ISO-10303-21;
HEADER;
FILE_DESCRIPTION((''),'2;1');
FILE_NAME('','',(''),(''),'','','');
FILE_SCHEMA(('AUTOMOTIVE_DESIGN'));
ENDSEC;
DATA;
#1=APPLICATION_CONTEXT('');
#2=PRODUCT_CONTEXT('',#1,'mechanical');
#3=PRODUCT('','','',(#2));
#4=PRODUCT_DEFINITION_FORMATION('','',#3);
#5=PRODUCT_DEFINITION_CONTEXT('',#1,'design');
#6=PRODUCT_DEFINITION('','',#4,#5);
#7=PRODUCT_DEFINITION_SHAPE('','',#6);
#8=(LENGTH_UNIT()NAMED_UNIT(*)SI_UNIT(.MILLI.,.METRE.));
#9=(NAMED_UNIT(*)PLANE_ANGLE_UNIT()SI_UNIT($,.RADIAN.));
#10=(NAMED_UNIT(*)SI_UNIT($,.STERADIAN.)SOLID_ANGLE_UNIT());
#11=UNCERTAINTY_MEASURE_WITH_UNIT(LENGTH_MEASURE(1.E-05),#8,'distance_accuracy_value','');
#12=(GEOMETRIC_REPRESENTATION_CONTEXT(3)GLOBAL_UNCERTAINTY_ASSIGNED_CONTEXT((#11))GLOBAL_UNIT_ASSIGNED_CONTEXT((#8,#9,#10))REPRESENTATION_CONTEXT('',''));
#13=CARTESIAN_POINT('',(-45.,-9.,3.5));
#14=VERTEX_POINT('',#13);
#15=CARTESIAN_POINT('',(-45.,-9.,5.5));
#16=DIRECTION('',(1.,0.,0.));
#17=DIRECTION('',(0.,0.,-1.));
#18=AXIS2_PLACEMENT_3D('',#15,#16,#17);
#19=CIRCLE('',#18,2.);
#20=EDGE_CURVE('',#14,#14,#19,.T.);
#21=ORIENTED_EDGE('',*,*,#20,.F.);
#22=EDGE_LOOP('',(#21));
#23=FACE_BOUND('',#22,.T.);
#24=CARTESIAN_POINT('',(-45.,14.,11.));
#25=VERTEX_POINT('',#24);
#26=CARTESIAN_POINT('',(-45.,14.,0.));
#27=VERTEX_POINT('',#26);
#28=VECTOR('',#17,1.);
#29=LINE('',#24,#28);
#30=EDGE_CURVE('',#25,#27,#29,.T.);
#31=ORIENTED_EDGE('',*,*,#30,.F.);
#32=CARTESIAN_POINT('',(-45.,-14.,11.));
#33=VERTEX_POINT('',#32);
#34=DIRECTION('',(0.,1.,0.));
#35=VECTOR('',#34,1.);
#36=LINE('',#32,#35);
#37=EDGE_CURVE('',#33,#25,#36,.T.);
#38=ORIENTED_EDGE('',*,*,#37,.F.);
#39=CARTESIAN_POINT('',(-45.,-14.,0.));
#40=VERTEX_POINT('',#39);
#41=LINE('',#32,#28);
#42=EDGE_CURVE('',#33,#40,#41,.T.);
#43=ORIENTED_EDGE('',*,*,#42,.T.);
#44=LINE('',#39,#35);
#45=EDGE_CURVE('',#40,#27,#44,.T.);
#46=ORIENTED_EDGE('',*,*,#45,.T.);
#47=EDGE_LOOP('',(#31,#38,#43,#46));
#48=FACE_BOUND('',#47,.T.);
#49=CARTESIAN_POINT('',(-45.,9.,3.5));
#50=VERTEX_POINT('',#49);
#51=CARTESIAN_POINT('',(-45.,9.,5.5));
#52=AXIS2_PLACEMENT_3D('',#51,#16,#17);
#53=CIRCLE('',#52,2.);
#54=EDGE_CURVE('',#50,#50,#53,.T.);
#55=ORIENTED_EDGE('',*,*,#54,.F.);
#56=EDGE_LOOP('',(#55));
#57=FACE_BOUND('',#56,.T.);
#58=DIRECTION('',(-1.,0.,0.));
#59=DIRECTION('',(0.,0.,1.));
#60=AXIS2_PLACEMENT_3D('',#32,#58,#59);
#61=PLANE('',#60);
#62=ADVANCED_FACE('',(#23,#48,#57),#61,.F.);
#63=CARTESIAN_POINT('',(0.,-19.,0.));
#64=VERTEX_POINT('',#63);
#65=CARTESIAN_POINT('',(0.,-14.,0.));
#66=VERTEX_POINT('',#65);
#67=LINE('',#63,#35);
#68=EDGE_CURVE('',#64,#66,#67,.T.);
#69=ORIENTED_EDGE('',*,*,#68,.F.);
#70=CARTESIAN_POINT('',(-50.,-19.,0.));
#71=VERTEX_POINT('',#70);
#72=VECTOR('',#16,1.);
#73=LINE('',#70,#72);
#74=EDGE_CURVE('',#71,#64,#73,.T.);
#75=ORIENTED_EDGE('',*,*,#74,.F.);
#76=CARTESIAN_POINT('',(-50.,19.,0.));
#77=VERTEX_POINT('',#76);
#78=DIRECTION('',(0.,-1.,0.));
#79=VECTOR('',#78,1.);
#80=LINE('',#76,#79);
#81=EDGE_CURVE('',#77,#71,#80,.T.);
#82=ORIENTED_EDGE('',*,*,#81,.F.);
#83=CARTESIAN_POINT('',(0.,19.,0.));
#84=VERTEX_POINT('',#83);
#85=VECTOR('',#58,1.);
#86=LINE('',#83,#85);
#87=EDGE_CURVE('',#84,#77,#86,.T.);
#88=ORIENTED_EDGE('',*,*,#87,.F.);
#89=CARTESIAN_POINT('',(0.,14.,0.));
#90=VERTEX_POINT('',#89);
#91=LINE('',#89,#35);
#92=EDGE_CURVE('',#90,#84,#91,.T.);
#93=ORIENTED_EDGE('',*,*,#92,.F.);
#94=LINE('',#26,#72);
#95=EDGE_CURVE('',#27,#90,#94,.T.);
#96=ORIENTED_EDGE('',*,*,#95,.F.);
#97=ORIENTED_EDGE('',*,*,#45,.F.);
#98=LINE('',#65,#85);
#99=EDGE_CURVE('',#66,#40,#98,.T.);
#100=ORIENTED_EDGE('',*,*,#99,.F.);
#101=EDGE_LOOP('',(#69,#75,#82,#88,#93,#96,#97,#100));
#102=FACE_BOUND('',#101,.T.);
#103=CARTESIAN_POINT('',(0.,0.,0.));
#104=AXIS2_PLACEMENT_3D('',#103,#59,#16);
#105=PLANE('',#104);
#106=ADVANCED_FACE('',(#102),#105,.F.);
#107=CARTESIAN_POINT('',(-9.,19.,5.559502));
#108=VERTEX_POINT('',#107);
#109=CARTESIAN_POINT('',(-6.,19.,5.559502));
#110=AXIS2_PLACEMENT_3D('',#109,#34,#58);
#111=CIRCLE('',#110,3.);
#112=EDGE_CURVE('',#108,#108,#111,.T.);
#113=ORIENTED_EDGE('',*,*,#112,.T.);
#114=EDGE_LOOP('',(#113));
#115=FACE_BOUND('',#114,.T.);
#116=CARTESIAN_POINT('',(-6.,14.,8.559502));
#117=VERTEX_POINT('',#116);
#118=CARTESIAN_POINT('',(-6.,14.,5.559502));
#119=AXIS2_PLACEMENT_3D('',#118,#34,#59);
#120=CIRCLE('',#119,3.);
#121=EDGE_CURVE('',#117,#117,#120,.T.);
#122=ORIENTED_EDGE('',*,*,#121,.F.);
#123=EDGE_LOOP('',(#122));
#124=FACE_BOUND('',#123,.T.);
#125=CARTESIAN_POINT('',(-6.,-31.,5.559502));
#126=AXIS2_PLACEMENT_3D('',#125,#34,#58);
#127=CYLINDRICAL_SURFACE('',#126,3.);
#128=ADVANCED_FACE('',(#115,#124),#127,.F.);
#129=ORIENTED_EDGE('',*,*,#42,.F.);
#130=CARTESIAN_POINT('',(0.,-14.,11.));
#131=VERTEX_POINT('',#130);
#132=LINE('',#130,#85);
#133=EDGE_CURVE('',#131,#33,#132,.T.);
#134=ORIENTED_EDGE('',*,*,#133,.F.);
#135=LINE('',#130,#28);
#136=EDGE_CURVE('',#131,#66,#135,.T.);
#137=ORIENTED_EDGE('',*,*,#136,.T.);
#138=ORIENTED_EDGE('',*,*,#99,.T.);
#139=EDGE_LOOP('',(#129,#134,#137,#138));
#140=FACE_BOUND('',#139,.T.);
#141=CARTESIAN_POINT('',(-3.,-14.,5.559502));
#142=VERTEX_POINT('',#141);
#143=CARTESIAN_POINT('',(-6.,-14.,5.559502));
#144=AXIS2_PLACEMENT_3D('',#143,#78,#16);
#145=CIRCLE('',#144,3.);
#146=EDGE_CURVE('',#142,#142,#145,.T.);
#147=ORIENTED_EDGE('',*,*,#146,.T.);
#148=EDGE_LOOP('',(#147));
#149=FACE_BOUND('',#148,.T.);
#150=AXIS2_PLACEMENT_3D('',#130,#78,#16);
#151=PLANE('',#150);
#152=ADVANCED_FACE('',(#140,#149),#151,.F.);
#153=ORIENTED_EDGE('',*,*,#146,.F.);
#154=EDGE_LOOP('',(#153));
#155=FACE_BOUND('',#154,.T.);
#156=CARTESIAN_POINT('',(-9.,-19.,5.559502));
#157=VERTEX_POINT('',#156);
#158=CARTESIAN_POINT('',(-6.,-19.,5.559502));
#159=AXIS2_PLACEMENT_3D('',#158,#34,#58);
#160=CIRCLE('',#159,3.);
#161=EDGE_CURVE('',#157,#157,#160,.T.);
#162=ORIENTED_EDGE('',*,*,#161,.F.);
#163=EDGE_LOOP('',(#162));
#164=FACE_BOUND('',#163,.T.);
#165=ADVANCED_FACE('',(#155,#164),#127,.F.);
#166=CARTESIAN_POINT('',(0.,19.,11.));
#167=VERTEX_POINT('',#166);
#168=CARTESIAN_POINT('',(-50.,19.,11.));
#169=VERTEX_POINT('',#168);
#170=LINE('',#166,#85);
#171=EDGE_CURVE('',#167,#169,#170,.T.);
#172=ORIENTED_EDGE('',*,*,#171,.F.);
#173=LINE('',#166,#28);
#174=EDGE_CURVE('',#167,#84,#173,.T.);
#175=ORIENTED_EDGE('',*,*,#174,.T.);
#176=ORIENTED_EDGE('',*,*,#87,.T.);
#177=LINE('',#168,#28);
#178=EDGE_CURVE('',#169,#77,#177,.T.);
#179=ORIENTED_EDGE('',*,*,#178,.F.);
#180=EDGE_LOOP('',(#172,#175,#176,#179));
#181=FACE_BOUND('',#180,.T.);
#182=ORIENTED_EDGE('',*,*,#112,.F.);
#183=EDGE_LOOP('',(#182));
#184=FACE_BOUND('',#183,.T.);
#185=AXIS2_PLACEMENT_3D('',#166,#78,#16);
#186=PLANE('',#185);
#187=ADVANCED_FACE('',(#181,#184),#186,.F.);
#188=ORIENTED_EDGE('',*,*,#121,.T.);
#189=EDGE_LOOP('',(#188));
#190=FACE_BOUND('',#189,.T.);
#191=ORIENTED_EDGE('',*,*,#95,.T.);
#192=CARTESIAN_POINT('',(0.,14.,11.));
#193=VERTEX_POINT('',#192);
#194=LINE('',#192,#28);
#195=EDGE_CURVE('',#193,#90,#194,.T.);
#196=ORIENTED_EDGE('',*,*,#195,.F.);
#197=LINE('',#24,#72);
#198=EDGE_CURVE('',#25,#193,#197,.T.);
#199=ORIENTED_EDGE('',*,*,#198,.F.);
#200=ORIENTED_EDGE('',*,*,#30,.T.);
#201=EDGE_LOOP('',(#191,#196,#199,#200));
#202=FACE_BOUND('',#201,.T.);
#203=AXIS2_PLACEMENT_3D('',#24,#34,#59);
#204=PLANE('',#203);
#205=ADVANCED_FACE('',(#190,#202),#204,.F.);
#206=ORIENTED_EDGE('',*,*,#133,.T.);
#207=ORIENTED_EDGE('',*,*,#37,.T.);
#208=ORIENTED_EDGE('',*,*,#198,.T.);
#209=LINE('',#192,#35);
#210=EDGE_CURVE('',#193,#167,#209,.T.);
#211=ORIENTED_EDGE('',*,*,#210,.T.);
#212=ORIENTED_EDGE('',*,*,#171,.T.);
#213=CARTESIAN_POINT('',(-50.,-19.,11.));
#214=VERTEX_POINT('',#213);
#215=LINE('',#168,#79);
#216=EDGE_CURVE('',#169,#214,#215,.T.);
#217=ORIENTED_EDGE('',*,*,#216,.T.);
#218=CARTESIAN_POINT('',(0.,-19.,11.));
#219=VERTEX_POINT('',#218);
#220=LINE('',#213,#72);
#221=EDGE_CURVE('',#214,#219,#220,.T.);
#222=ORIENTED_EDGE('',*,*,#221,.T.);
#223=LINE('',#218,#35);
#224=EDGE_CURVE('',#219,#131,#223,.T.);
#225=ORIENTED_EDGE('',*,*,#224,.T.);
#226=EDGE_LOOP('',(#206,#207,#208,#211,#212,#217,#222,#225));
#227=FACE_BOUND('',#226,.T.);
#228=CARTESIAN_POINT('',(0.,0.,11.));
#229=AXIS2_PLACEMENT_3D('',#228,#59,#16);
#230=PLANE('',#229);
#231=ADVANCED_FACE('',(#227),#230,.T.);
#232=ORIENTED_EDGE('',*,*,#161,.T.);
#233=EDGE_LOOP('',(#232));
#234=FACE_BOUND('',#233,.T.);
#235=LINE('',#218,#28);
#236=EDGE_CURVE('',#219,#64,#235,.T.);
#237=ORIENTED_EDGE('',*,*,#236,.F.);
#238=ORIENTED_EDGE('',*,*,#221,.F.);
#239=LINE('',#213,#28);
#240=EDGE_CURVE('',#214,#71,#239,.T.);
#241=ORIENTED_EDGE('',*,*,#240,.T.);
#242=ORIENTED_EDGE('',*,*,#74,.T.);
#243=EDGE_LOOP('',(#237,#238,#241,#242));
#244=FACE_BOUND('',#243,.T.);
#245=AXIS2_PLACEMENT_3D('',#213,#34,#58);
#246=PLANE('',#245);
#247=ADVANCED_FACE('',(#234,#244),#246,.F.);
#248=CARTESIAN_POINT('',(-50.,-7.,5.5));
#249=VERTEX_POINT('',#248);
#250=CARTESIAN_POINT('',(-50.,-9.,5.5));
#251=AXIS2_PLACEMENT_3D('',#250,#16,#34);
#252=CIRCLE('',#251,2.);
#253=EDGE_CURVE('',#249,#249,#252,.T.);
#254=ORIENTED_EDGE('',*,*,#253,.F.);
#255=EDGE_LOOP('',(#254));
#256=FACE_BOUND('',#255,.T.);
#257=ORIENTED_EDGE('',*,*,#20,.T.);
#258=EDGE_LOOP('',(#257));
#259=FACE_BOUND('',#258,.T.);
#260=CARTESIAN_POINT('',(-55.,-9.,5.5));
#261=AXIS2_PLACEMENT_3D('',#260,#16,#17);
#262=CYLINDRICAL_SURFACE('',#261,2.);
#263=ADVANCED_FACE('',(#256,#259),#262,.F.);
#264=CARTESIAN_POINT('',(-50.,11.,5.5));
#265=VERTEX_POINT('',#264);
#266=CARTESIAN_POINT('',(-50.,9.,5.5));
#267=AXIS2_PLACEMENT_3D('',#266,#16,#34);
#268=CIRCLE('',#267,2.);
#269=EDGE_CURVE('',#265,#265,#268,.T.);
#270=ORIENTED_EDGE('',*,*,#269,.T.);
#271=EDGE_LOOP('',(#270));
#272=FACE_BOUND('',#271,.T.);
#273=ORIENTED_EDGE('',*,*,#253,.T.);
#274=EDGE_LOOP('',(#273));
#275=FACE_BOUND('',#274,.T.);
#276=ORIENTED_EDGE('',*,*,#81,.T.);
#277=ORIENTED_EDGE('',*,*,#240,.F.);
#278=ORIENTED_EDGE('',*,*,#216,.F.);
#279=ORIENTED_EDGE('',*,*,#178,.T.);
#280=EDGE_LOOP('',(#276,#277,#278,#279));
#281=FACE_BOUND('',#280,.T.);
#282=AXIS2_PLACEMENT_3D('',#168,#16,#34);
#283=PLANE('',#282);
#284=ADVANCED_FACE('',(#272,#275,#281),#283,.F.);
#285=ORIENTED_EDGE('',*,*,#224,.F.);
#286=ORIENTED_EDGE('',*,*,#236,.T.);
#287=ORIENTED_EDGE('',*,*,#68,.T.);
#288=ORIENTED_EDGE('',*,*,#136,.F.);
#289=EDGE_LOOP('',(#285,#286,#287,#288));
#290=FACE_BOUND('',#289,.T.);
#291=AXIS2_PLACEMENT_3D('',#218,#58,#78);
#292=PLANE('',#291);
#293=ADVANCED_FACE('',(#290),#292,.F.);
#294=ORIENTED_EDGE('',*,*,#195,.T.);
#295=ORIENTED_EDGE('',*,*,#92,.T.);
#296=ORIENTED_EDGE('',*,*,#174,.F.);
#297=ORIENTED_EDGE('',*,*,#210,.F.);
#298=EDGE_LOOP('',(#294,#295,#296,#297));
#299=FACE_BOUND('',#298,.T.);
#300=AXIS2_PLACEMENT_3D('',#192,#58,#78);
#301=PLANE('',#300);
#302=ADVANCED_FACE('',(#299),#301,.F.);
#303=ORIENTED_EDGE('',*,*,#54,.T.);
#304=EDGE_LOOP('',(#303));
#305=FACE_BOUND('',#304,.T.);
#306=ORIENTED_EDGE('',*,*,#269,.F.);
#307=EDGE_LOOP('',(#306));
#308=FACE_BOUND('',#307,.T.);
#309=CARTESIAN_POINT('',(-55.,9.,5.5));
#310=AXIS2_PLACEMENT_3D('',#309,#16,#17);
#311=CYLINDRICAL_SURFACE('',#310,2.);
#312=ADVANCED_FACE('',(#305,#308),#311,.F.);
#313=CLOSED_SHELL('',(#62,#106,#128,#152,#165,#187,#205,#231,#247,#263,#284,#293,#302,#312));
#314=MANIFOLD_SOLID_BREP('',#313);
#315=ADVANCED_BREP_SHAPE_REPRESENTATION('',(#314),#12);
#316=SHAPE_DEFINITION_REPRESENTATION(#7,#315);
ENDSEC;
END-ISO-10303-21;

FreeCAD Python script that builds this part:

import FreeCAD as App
import Part
import Sketcher

V = App.Vector
Q = App.Units.Quantity

doc = App.newDocument("Part")
body = doc.addObject("PartDesign::Body", "Body")

# Sketch on XY plane
sketch1 = body.newObject("Sketcher::SketchObject", "Sketch")
sketch1.AttachmentSupport = (doc.getObject("XY_Plane"), [""])
sketch1.MapMode = "FlatFace"
sketch1.addGeometry(Part.LineSegment(V(0, 19, 0), V(-50, 19, 0)), False)
sketch1.addGeometry(Part.LineSegment(V(-50, 19, 0), V(-50, -19, 0)), False)
sketch1.addGeometry(Part.LineSegment(V(-50, -19, 0), V(0, -19, 0)), False)
sketch1.addGeometry(Part.LineSegment(V(0, -19, 0), V(0, -14, 0)), False)
sketch1.addGeometry(Part.LineSegment(V(0, -14, 0), V(-45, -14, 0)), False)
sketch1.addGeometry(Part.LineSegment(V(-45, -14, 0), V(-45, 14, 0)), False)
sketch1.addGeometry(Part.LineSegment(V(-45, 14, 0), V(0, 14, 0)), False)
sketch1.addGeometry(Part.LineSegment(V(0, 14, 0), V(0, 19, 0)), False)
sketch1.addConstraint(Sketcher.Constraint("Coincident", 0, 2, 1, 1))
sketch1.addConstraint(Sketcher.Constraint("Coincident", 1, 2, 2, 1))
sketch1.addConstraint(Sketcher.Constraint("Coincident", 2, 2, 3, 1))
sketch1.addConstraint(Sketcher.Constraint("Coincident", 3, 2, 4, 1))
sketch1.addConstraint(Sketcher.Constraint("Coincident", 4, 2, 5, 1))
sketch1.addConstraint(Sketcher.Constraint("Coincident", 5, 2, 6, 1))
sketch1.addConstraint(Sketcher.Constraint("Coincident", 6, 2, 7, 1))
sketch1.addConstraint(Sketcher.Constraint("Coincident", 7, 2, 0, 1))
sketch1.addConstraint(Sketcher.Constraint("Horizontal", 0))
sketch1.addConstraint(Sketcher.Constraint("Vertical", 1))
sketch1.addConstraint(Sketcher.Constraint("Horizontal", 2))
sketch1.addConstraint(Sketcher.Constraint("Vertical", 3))
sketch1.addConstraint(Sketcher.Constraint("Horizontal", 4))
sketch1.addConstraint(Sketcher.Constraint("Vertical", 5))
sketch1.addConstraint(Sketcher.Constraint("Horizontal", 6))
sketch1.addConstraint(Sketcher.Constraint("Vertical", 7))
sketch1.addConstraint(Sketcher.Constraint("Symmetric", 3, 2, 6, 2, -1, 1))
sketch1.addConstraint(Sketcher.Constraint("Symmetric", 2, 2, 7, 2, -1))
sketch1.addConstraint(Sketcher.Constraint("DistanceX", 0, 2, 0, 1, Q("50 mm")))
sketch1.addConstraint(Sketcher.Constraint("DistanceX", 4, 2, 4, 1, Q("45 mm")))
sketch1.addConstraint(Sketcher.Constraint("DistanceY", 1, 2, 1, 1, Q("38 mm")))
sketch1.addConstraint(Sketcher.Constraint("DistanceY", 3, 1, 3, 2, Q("5 mm")))
pad1 = body.newObject("PartDesign::Pad", "Pad")
pad1.Profile = sketch1
pad1.Length = 11

# Sketch on XZ plane
sketch2 = body.newObject("Sketcher::SketchObject", "Sketch001")
sketch2.AttachmentSupport = (doc.getObject("XZ_Plane"), [""])
sketch2.MapMode = "FlatFace"
sketch2.AttachmentOffset = App.Placement(V(0, 0, -19), App.Rotation())
sketch2.addGeometry(Part.Circle(V(-6, 5.6, 0), V(0, 0, 1), 3), False)
sketch2.addConstraint(Sketcher.Constraint("Diameter", 0, Q("6 mm")))
sketch2.addConstraint(Sketcher.Constraint("DistanceX", 0, 3, -1, 1, Q("6 mm")))
sketch2.addConstraint(Sketcher.Constraint("DistanceY", -1, 1, 0, 3, Q("5.559502 mm")))
pocket1 = body.newObject("PartDesign::Pocket", "Pocket")
pocket1.Profile = sketch2
pocket1.Length = 50
pocket1.Reversed = True

# Sketch on YZ plane
sketch3 = body.newObject("Sketcher::SketchObject", "Sketch002")
sketch3.AttachmentSupport = (doc.getObject("YZ_Plane"), [""])
sketch3.MapMode = "FlatFace"
sketch3.AttachmentOffset = App.Placement(V(0, 0, -45), App.Rotation())
sketch3.addGeometry(Part.Circle(V(9, 5.5, 0), V(0, 0, 1), 2), False)
sketch3.addGeometry(Part.Circle(V(-9, 5.5, 0), V(0, 0, 1), 2), False)
sketch3.addConstraint(Sketcher.Constraint("Equal", 0, 1))
sketch3.addConstraint(Sketcher.Constraint("Symmetric", 0, 3, 1, 3, -2))
sketch3.addConstraint(Sketcher.Constraint("Diameter", 0, Q("4 mm")))
sketch3.addConstraint(Sketcher.Constraint("DistanceX", -1, 1, 0, 3, Q("9 mm")))
sketch3.addConstraint(Sketcher.Constraint("DistanceY", -1, 1, 0, 3, Q("5.5 mm")))
pocket2 = body.newObject("PartDesign::Pocket", "Pocket001")
pocket2.Profile = sketch3
pocket2.Length = 10

doc.recompute()
